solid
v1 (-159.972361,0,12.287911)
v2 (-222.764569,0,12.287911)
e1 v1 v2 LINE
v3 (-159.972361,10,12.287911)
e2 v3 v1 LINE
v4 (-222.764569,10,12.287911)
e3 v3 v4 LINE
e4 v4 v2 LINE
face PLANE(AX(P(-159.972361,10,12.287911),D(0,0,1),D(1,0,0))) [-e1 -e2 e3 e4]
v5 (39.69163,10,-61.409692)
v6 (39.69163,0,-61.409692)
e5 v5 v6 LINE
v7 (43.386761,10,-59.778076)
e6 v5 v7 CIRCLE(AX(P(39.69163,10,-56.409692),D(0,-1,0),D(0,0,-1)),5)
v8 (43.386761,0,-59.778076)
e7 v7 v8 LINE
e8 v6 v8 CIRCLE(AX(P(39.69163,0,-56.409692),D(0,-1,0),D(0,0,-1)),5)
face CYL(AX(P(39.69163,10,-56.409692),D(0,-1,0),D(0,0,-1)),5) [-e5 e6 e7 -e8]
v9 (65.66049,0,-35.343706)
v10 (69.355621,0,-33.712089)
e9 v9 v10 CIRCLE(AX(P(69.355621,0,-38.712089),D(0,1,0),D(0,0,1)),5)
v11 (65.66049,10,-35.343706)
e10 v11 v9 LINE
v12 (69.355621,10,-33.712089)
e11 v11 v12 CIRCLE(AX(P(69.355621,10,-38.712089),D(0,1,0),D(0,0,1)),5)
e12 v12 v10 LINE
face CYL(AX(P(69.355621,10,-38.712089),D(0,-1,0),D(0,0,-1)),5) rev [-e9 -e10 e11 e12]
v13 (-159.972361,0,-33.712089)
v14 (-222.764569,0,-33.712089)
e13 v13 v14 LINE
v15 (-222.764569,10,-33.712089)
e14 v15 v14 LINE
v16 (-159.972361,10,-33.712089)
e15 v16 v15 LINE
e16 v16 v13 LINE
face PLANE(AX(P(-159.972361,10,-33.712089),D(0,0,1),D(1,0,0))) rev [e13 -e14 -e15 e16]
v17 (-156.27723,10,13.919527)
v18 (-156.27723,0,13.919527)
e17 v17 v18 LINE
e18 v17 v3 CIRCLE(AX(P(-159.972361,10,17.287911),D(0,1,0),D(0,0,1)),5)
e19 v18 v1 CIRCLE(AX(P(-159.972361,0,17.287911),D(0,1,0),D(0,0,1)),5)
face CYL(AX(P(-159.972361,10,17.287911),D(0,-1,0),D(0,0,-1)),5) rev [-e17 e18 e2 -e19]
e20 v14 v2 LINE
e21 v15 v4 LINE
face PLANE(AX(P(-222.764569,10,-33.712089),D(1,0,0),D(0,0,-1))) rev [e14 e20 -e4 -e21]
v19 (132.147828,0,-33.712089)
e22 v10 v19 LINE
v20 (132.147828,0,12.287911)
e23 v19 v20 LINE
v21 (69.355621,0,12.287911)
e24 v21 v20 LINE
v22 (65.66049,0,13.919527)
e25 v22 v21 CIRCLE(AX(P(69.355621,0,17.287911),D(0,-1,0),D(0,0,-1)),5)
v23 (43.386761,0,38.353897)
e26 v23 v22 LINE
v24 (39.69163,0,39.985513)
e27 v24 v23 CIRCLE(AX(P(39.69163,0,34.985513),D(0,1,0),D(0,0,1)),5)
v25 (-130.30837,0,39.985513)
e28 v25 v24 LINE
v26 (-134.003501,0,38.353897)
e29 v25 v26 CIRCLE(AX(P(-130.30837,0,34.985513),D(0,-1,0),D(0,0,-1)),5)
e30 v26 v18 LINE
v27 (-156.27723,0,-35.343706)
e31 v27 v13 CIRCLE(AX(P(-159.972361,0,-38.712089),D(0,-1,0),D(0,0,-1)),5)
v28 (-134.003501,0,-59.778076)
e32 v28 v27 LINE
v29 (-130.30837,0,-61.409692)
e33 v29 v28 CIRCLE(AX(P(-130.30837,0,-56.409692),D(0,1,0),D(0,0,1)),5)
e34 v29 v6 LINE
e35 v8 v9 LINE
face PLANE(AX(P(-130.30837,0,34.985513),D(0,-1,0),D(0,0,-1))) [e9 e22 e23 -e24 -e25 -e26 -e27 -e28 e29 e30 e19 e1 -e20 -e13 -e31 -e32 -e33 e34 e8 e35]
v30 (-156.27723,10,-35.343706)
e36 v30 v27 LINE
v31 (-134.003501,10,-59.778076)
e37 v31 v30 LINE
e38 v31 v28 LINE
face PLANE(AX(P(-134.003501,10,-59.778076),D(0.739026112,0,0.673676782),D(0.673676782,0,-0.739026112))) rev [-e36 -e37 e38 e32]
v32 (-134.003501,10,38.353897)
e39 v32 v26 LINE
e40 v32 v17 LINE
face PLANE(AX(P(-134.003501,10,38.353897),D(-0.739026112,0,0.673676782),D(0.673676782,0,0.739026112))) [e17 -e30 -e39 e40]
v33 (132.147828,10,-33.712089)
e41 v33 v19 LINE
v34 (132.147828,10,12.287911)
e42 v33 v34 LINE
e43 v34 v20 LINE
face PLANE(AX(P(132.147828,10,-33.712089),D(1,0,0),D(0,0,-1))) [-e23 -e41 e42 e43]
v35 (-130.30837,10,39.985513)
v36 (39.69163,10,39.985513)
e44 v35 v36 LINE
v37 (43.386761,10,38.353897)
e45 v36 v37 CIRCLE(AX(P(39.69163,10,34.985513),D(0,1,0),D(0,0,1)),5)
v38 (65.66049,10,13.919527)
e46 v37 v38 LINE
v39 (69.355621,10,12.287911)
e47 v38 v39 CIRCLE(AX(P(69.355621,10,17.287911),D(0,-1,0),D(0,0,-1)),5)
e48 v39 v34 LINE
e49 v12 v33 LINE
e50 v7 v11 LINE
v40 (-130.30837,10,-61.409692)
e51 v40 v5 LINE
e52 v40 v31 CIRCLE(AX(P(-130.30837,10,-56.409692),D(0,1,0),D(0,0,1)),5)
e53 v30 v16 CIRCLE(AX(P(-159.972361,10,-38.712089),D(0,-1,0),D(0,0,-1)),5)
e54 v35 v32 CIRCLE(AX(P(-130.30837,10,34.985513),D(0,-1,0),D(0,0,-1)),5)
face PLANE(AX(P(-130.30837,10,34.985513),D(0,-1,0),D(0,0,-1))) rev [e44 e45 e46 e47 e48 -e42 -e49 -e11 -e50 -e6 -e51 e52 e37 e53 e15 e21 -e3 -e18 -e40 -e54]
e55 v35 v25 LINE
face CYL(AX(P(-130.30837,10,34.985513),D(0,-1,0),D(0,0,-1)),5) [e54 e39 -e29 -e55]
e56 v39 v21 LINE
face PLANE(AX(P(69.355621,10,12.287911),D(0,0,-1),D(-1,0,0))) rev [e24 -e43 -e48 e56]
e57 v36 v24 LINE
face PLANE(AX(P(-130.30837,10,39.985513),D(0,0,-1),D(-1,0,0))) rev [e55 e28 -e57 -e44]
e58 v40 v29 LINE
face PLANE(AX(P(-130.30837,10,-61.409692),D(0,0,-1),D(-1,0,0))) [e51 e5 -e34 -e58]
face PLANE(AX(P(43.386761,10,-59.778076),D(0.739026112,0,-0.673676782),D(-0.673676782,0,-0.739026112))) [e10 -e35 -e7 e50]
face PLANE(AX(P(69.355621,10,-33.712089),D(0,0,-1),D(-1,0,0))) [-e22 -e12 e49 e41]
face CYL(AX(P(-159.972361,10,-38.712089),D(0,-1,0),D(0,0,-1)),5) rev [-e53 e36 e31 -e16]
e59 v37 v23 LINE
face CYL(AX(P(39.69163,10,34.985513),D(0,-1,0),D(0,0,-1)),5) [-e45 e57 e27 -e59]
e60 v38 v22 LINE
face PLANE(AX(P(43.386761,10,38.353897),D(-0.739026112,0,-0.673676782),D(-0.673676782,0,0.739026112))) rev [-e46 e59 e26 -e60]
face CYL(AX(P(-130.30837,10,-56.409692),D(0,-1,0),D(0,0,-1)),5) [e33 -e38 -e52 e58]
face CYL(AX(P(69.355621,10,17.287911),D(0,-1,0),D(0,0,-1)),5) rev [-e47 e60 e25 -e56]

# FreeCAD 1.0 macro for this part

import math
import FreeCAD as App
import Part
import Sketcher
Q = App.Units.Quantity

doc = App.newDocument("Part")
body = doc.addObject("PartDesign::Body", "Body")

sketch1 = body.newObject("Sketcher::SketchObject", "Sketch")
sketch1.AttachmentSupport = (doc.getObject("XZ_Plane"), [""])
sketch1.MapMode = "FlatFace"
sketch1.addGeometry([
    Part.LineSegment(App.Vector(39.69163, -61.409692, 0), App.Vector(-130.30837, -61.409692, 0)),
    Part.ArcOfCircle(Part.Circle(App.Vector(-130.30837, -56.409692, 0), App.Vector(0, 0, 1), 5), math.radians(-137.648521), math.radians(-90)),
    Part.LineSegment(App.Vector(-134.003501, -59.778076, 0), App.Vector(-156.27723, -35.343706, 0)),
    Part.ArcOfCircle(Part.Circle(App.Vector(-159.972361, -38.712089, 0), App.Vector(0, 0, 1), 5), math.radians(42.351479), math.radians(90)),
    Part.LineSegment(App.Vector(-159.972361, -33.712089, 0), App.Vector(-222.764569, -33.712089, 0)),
    Part.LineSegment(App.Vector(-222.764569, -33.712089, 0), App.Vector(-222.764569, 12.287911, 0)),
    Part.LineSegment(App.Vector(-222.764569, 12.287911, 0), App.Vector(-159.972361, 12.287911, 0)),
    Part.ArcOfCircle(Part.Circle(App.Vector(-159.972361, 17.287911, 0), App.Vector(0, 0, 1), 5), math.radians(-90), math.radians(-42.351479)),
    Part.LineSegment(App.Vector(-156.27723, 13.919527, 0), App.Vector(-134.003501, 38.353897, 0)),
    Part.ArcOfCircle(Part.Circle(App.Vector(-130.30837, 34.985513, 0), App.Vector(0, 0, 1), 5), math.radians(90), math.radians(137.648521)),
    Part.LineSegment(App.Vector(-130.30837, 39.985513, 0), App.Vector(39.69163, 39.985513, 0)),
    Part.ArcOfCircle(Part.Circle(App.Vector(39.69163, 34.985513, 0), App.Vector(0, 0, 1), 5), math.radians(42.351479), math.radians(90)),
    Part.LineSegment(App.Vector(43.386761, 38.353897, 0), App.Vector(65.66049, 13.919527, 0)),
    Part.ArcOfCircle(Part.Circle(App.Vector(69.355621, 17.287911, 0), App.Vector(0, 0, 1), 5), math.radians(-137.648521), math.radians(-90)),
    Part.LineSegment(App.Vector(69.355621, 12.287911, 0), App.Vector(132.147828, 12.287911, 0)),
    Part.LineSegment(App.Vector(132.147828, 12.287911, 0), App.Vector(132.147828, -33.712089, 0)),
    Part.LineSegment(App.Vector(132.147828, -33.712089, 0), App.Vector(69.355621, -33.712089, 0)),
    Part.ArcOfCircle(Part.Circle(App.Vector(69.355621, -38.712089, 0), App.Vector(0, 0, 1), 5), math.radians(90), math.radians(137.648521)),
    Part.LineSegment(App.Vector(65.66049, -35.343706, 0), App.Vector(43.386761, -59.778076, 0)),
    Part.ArcOfCircle(Part.Circle(App.Vector(39.69163, -56.409692, 0), App.Vector(0, 0, 1), 5), math.radians(-90), math.radians(-42.351479)),
], False)
sketch1.addConstraint([
    Sketcher.Constraint("Tangent", 0, 2, 1, 2),
    Sketcher.Constraint("Tangent", 1, 1, 2, 1),
    Sketcher.Constraint("Tangent", 2, 2, 3, 1),
    Sketcher.Constraint("Tangent", 3, 2, 4, 1),
    Sketcher.Constraint("Coincident", 4, 2, 5, 1),
    Sketcher.Constraint("Coincident", 5, 2, 6, 1),
    Sketcher.Constraint("Tangent", 6, 2, 7, 1),
    Sketcher.Constraint("Tangent", 7, 2, 8, 1),
    Sketcher.Constraint("Tangent", 8, 2, 9, 2),
    Sketcher.Constraint("Tangent", 9, 1, 10, 1),
    Sketcher.Constraint("Tangent", 10, 2, 11, 2),
    Sketcher.Constraint("Tangent", 11, 1, 12, 1),
    Sketcher.Constraint("Tangent", 12, 2, 13, 1),
    Sketcher.Constraint("Tangent", 13, 2, 14, 1),
    Sketcher.Constraint("Coincident", 14, 2, 15, 1),
    Sketcher.Constraint("Coincident", 15, 2, 16, 1),
    Sketcher.Constraint("Tangent", 16, 2, 17, 1),
    Sketcher.Constraint("Tangent", 17, 2, 18, 1),
    Sketcher.Constraint("Tangent", 18, 2, 19, 2),
    Sketcher.Constraint("Tangent", 19, 1, 0, 1),
    Sketcher.Constraint("Horizontal", 0),
    Sketcher.Constraint("Horizontal", 4),
    Sketcher.Constraint("Vertical", 5),
    Sketcher.Constraint("Horizontal", 6),
    Sketcher.Constraint("Horizontal", 10),
    Sketcher.Constraint("Horizontal", 14),
    Sketcher.Constraint("Vertical", 15),
    Sketcher.Constraint("Horizontal", 16),
    Sketcher.Constraint("Equal", 1, 3),
    Sketcher.Constraint("Equal", 3, 7),
    Sketcher.Constraint("Equal", 7, 9),
    Sketcher.Constraint("Equal", 9, 11),
    Sketcher.Constraint("Equal", 11, 13),
    Sketcher.Constraint("Equal", 13, 17),
    Sketcher.Constraint("Equal", 17, 19),
    Sketcher.Constraint("Parallel", 2, 12),
    Sketcher.Constraint("Parallel", 8, 18),
    Sketcher.Constraint("Horizontal", 7, 3, 13, 3),
    Sketcher.Constraint("Horizontal", 3, 3, 17, 3),
    Sketcher.Constraint("Horizontal", 8, 2, 11, 1),
    Sketcher.Constraint("Vertical", 3, 3, 7, 3),
    Sketcher.Constraint("Vertical", 1, 3, 9, 3),
    Sketcher.Constraint("Vertical", 13, 3, 17, 3),
    Sketcher.Constraint("Equal", 6, 14),
    Sketcher.Constraint("Radius", 1, Q("5 mm")),
    Sketcher.Constraint("DistanceX", 0, 2, 0, 1, Q("170 mm")),
    Sketcher.Constraint("DistanceY", 5, 1, 5, 2, Q("46 mm")),
    Sketcher.Constraint("DistanceX", 1, 1, -1, 1, Q("134.003501 mm")),
    Sketcher.Constraint("Distance", 2, Q("33.062932 mm")),
    Sketcher.Constraint("DistanceX", 4, 2, 4, 1, Q("62.792208 mm")),
    Sketcher.Constraint("DistanceX", 1, 3, -1, 1, Q("130.30837 mm")),
    Sketcher.Constraint("DistanceY", 1, 3, -1, 1, Q("56.409692 mm")),
])
pad1 = body.newObject("PartDesign::Pad", "Pad")
pad1.Profile = sketch1
pad1.Length = 10
pad1.Reversed = True

doc.recompute()
